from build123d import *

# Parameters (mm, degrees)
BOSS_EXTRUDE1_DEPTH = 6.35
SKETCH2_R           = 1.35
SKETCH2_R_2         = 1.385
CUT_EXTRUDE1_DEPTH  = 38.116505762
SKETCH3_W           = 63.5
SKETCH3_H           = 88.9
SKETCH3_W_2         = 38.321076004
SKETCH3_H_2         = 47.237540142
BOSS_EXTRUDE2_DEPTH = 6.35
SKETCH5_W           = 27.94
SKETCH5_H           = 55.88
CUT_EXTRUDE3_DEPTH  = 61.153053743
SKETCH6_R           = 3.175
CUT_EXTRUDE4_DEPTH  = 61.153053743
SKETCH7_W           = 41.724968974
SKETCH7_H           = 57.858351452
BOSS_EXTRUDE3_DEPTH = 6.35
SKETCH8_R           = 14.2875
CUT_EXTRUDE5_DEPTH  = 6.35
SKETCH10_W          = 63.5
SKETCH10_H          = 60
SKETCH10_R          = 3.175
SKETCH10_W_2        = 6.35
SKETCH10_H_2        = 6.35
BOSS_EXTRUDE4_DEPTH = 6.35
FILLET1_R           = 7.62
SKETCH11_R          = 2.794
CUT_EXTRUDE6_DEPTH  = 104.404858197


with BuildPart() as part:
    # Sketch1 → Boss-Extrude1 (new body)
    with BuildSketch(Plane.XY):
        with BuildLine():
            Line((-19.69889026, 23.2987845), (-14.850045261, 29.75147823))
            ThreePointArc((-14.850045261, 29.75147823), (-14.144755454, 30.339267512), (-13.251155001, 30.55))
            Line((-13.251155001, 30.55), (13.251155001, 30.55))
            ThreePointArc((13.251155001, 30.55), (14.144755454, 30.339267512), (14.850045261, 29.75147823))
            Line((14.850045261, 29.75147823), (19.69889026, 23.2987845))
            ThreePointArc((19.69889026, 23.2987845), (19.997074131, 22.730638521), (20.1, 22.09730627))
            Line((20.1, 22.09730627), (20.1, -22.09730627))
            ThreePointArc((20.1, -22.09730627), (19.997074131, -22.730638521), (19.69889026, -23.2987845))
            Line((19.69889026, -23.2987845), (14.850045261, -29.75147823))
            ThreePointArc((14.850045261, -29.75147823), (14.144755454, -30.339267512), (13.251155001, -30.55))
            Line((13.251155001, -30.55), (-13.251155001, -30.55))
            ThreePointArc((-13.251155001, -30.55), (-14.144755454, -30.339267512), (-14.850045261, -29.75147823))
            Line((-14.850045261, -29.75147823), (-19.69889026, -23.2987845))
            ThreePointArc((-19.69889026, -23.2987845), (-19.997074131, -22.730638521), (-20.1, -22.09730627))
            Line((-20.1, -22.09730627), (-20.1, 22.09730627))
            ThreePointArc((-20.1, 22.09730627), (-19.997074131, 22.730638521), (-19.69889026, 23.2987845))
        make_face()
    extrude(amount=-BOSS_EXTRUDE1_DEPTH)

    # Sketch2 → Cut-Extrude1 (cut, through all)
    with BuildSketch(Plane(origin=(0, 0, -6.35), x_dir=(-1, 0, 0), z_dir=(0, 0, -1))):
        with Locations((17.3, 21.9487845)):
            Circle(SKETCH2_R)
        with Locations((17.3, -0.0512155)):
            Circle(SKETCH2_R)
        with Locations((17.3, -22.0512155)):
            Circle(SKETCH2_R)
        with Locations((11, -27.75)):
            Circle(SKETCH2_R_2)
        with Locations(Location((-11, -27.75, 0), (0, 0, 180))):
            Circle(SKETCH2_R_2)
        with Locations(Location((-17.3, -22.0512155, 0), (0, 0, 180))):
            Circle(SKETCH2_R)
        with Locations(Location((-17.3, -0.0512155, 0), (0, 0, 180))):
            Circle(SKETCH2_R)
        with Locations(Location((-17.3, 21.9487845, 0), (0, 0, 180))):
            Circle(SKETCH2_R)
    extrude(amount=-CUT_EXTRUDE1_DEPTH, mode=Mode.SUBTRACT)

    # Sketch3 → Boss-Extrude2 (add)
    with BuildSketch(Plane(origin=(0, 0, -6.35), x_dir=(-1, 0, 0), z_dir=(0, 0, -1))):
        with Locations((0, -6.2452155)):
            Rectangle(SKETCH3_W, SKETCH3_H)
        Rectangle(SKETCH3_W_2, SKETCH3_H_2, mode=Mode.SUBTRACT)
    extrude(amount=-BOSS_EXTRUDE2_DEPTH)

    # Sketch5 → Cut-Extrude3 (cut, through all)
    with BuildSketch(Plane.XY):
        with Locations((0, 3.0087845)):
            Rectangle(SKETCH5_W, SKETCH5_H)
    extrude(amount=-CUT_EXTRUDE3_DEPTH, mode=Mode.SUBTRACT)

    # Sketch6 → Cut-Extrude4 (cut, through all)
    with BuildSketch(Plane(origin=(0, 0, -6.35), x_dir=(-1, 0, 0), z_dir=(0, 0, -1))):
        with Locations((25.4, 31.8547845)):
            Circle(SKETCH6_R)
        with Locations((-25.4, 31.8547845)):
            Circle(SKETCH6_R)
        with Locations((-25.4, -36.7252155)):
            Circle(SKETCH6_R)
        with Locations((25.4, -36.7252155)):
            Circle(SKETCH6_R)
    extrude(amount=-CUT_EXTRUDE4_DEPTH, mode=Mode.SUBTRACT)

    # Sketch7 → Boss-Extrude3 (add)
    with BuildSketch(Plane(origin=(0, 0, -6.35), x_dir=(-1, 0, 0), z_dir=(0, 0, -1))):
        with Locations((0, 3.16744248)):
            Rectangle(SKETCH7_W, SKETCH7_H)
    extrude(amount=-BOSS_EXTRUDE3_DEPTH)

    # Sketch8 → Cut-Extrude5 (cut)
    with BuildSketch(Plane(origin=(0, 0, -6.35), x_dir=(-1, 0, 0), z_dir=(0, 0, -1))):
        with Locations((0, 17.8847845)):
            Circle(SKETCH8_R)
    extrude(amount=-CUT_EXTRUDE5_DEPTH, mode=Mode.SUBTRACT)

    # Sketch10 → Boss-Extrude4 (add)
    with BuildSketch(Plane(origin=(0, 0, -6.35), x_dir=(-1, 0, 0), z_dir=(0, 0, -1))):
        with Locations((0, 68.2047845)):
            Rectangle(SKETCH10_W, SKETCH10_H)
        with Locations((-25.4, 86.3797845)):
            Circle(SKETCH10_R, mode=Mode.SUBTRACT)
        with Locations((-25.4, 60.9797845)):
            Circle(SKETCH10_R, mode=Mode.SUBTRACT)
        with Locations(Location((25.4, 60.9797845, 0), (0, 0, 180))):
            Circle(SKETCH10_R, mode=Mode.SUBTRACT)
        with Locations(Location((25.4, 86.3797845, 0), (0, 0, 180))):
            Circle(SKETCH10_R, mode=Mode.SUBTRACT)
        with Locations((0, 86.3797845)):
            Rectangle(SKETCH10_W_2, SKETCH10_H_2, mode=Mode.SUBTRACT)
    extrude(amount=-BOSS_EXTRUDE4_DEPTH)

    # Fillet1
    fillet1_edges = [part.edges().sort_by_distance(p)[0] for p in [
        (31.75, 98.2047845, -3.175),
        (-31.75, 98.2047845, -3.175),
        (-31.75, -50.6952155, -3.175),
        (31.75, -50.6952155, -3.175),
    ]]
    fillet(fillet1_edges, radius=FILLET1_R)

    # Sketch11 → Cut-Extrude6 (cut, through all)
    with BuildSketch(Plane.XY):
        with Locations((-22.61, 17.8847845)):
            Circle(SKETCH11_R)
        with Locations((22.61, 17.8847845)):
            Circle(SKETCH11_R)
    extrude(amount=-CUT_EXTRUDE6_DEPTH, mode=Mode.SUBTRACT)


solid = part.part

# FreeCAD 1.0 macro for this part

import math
import FreeCAD as App
import Part
import Sketcher
from FreeCAD import Vector
Q = App.Units.Quantity


def edges_at(feature, points):
    """Names of the edges that pass closest to the given points."""
    edges = feature.Shape.Edges
    near = lambda p: min(range(len(edges)), key=lambda i: edges[i].distToShape(Part.Vertex(*p))[0])
    return sorted({f"Edge{near(p) + 1}" for p in points})


def add_polygon(sketch, points):
    """Adds a closed chain of lines whose ends are joined by coincident constraints."""
    first, n = sketch.GeometryCount, len(points)
    for a, b in zip(points, points[1:] + points[:1]):
        sketch.addGeometry(Part.LineSegment(App.Vector(*a, 0), App.Vector(*b, 0)), False)
    for i in range(n):
        sketch.addConstraint(Sketcher.Constraint("Coincident", first + i, 2, first + (i + 1) % n, 1))

doc = App.newDocument("Part")
body = doc.addObject("PartDesign::Body", "Body")

sketch1 = body.newObject("Sketcher::SketchObject", "Sketch")
sketch1.AttachmentSupport = (doc.getObject("XY_Plane"), [""])
sketch1.MapMode = "FlatFace"
sketch1.addGeometry(Part.LineSegment(Vector(-14.850045, 29.751478, 0), Vector(-19.69889, 23.298785, 0)), False)
sketch1.addGeometry(Part.ArcOfCircle(Part.Circle(Vector(-18.1, 22.097306, 0), Vector(0, 0, 1), 2), math.radians(143.077149), math.radians(180)), False)
sketch1.addGeometry(Part.LineSegment(Vector(-20.1, 22.097306, 0), Vector(-20.1, -22.097306, 0)), False)
sketch1.addGeometry(Part.ArcOfCircle(Part.Circle(Vector(-18.1, -22.097306, 0), Vector(0, 0, 1), 2), math.radians(-180), math.radians(-143.077149)), False)
sketch1.addGeometry(Part.LineSegment(Vector(-19.69889, -23.298785, 0), Vector(-14.850045, -29.751478, 0)), False)
sketch1.addGeometry(Part.ArcOfCircle(Part.Circle(Vector(-13.251155, -28.55, 0), Vector(0, 0, 1), 2), math.radians(-143.077149), math.radians(-90)), False)
sketch1.addGeometry(Part.LineSegment(Vector(-13.251155, -30.55, 0), Vector(13.251155, -30.55, 0)), False)
sketch1.addGeometry(Part.ArcOfCircle(Part.Circle(Vector(13.251155, -28.55, 0), Vector(0, 0, 1), 2), math.radians(-90), math.radians(-36.922851)), False)
sketch1.addGeometry(Part.LineSegment(Vector(14.850045, -29.751478, 0), Vector(19.69889, -23.298785, 0)), False)
sketch1.addGeometry(Part.ArcOfCircle(Part.Circle(Vector(18.1, -22.097306, 0), Vector(0, 0, 1), 2), math.radians(-36.922851), math.radians(0)), False)
sketch1.addGeometry(Part.LineSegment(Vector(20.1, -22.097306, 0), Vector(20.1, 22.097306, 0)), False)
sketch1.addGeometry(Part.ArcOfCircle(Part.Circle(Vector(18.1, 22.097306, 0), Vector(0, 0, 1), 2), math.radians(0), math.radians(36.922851)), False)
sketch1.addGeometry(Part.LineSegment(Vector(19.69889, 23.298785, 0), Vector(14.850045, 29.751478, 0)), False)
sketch1.addGeometry(Part.ArcOfCircle(Part.Circle(Vector(13.251155, 28.55, 0), Vector(0, 0, 1), 2), math.radians(36.922851), math.radians(90)), False)
sketch1.addGeometry(Part.LineSegment(Vector(13.251155, 30.55, 0), Vector(-13.251155, 30.55, 0)), False)
sketch1.addGeometry(Part.ArcOfCircle(Part.Circle(Vector(-13.251155, 28.55, 0), Vector(0, 0, 1), 2), math.radians(90), math.radians(143.077149)), False)
sketch1.addConstraint(Sketcher.Constraint("Tangent", 0, 2, 1, 1))
sketch1.addConstraint(Sketcher.Constraint("Tangent", 1, 2, 2, 1))
sketch1.addConstraint(Sketcher.Constraint("Tangent", 2, 2, 3, 1))
sketch1.addConstraint(Sketcher.Constraint("Tangent", 3, 2, 4, 1))
sketch1.addConstraint(Sketcher.Constraint("Tangent", 4, 2, 5, 1))
sketch1.addConstraint(Sketcher.Constraint("Tangent", 5, 2, 6, 1))
sketch1.addConstraint(Sketcher.Constraint("Tangent", 6, 2, 7, 1))
sketch1.addConstraint(Sketcher.Constraint("Tangent", 7, 2, 8, 1))
sketch1.addConstraint(Sketcher.Constraint("Tangent", 8, 2, 9, 1))
sketch1.addConstraint(Sketcher.Constraint("Tangent", 9, 2, 10, 1))
sketch1.addConstraint(Sketcher.Constraint("Tangent", 10, 2, 11, 1))
sketch1.addConstraint(Sketcher.Constraint("Tangent", 11, 2, 12, 1))
sketch1.addConstraint(Sketcher.Constraint("Tangent", 12, 2, 13, 1))
sketch1.addConstraint(Sketcher.Constraint("Tangent", 13, 2, 14, 1))
sketch1.addConstraint(Sketcher.Constraint("Tangent", 14, 2, 15, 1))
sketch1.addConstraint(Sketcher.Constraint("Tangent", 15, 2, 0, 1))
sketch1.addConstraint(Sketcher.Constraint("Vertical", 2))
sketch1.addConstraint(Sketcher.Constraint("Horizontal", 6))
sketch1.addConstraint(Sketcher.Constraint("Vertical", 10))
sketch1.addConstraint(Sketcher.Constraint("Horizontal", 14))
sketch1.addConstraint(Sketcher.Constraint("Equal", 1, 3))
sketch1.addConstraint(Sketcher.Constraint("Equal", 3, 5))
sketch1.addConstraint(Sketcher.Constraint("Equal", 5, 7))
sketch1.addConstraint(Sketcher.Constraint("Equal", 7, 9))
sketch1.addConstraint(Sketcher.Constraint("Equal", 9, 11))
sketch1.addConstraint(Sketcher.Constraint("Equal", 11, 13))
sketch1.addConstraint(Sketcher.Constraint("Equal", 13, 15))
sketch1.addConstraint(Sketcher.Constraint("Symmetric", 1, 3, 9, 3, -1, 1))
sketch1.addConstraint(Sketcher.Constraint("Symmetric", 5, 3, 13, 3, -1, 1))
sketch1.addConstraint(Sketcher.Constraint("Symmetric", 4, 2, 7, 2, -2))
sketch1.addConstraint(Sketcher.Constraint("Symmetric", 0, 2, 11, 2, -2))
sketch1.addConstraint(Sketcher.Constraint("Radius", 1, 2.0))
sketch1.addConstraint(Sketcher.Constraint("DistanceX", 6, 1, 6, 2, 26.50231))
sketch1.addConstraint(Sketcher.Constraint("DistanceX", 1, 3, -1, 1, 18.1))
sketch1.addConstraint(Sketcher.Constraint("DistanceY", 5, 3, -1, 1, 28.55))
sketch1.addConstraint(Sketcher.Constraint("DistanceX", 4, 2, 7, 3, 28.1012))
pad1 = body.newObject("PartDesign::Pad", "Pad")
pad1.Profile = sketch1
pad1.Length = Q("0.25 in")
pad1.Reversed = True

sketch2 = body.newObject("Sketcher::SketchObject", "Sketch001")
sketch2.AttachmentSupport = (doc.getObject("XY_Plane"), [""])
sketch2.MapMode = "FlatFace"
sketch2.AttachmentOffset = App.Placement(Vector(0, 0, -0.25 * 25.4), App.Rotation())
sketch2.addGeometry(Part.Circle(Vector(-17.3, 21.948784, 0), Vector(0, 0, 1), 1.35), False)
sketch2.addGeometry(Part.Circle(Vector(-17.3, -0.051215, 0), Vector(0, 0, 1), 1.35), False)
sketch2.addGeometry(Part.Circle(Vector(-17.3, -22.051216, 0), Vector(0, 0, 1), 1.35), False)
sketch2.addGeometry(Part.Circle(Vector(-11, -27.75, 0), Vector(0, 0, 1), 1.385), False)
sketch2.addGeometry(Part.Circle(Vector(11, -27.75, 0), Vector(0, 0, 1), 1.385), False)
sketch2.addGeometry(Part.Circle(Vector(17.3, -22.051216, 0), Vector(0, 0, 1), 1.35), False)
sketch2.addGeometry(Part.Circle(Vector(17.3, -0.051215, 0), Vector(0, 0, 1), 1.35), False)
sketch2.addGeometry(Part.Circle(Vector(17.3, 21.948784, 0), Vector(0, 0, 1), 1.35), False)
sketch2.addConstraint(Sketcher.Constraint("Equal", 0, 1))
sketch2.addConstraint(Sketcher.Constraint("Equal", 1, 2))
sketch2.addConstraint(Sketcher.Constraint("Equal", 3, 4))
sketch2.addConstraint(Sketcher.Constraint("Equal", 2, 5))
sketch2.addConstraint(Sketcher.Constraint("Equal", 5, 6))
sketch2.addConstraint(Sketcher.Constraint("Equal", 6, 7))
sketch2.addConstraint(Sketcher.Constraint("Symmetric", 3, 3, 4, 3, -2))
sketch2.addConstraint(Sketcher.Constraint("Symmetric", 2, 3, 5, 3, -2))
sketch2.addConstraint(Sketcher.Constraint("Symmetric", 1, 3, 6, 3, -2))
sketch2.addConstraint(Sketcher.Constraint("Symmetric", 0, 3, 7, 3, -2))
sketch2.addConstraint(Sketcher.Constraint("Vertical", 0, 3, 1, 3))
sketch2.addConstraint(Sketcher.Constraint("Vertical", 1, 3, 2, 3))
sketch2.addConstraint(Sketcher.Constraint("Diameter", 0, 2.7))
sketch2.addConstraint(Sketcher.Constraint("Diameter", 3, 2.77))
sketch2.addConstraint(Sketcher.Constraint("DistanceX", 0, 3, -1, 1, 17.3))
sketch2.addConstraint(Sketcher.Constraint("DistanceX", 3, 3, -1, 1, 11.0))
sketch2.addConstraint(Sketcher.Constraint("DistanceY", 3, 3, -1, 1, 27.75))
sketch2.addConstraint(Sketcher.Constraint("DistanceY", 1, 3, 0, 3, 22.0))
sketch2.addConstraint(Sketcher.Constraint("DistanceY", 2, 3, 1, 3, 22.0))
sketch2.addConstraint(Sketcher.Constraint("DistanceY", -1, 1, 0, 3, 21.948784))
pocket1 = body.newObject("PartDesign::Pocket", "Pocket")
pocket1.Profile = sketch2
pocket1.Type = "ThroughAll"
pocket1.Reversed = True

sketch3 = body.newObject("Sketcher::SketchObject", "Sketch002")
sketch3.AttachmentSupport = (doc.getObject("XY_Plane"), [""])
sketch3.MapMode = "FlatFace"
sketch3.AttachmentOffset = App.Placement(Vector(0, 0, -0.25 * 25.4), App.Rotation())
add_polygon(sketch3, [(31.75, 38.204785), (31.75, -50.695216), (-31.75, -50.695216), (-31.75, 38.204785)])
add_polygon(sketch3, [(-19.160538, -23.61877), (19.160538, -23.61877), (19.160538, 23.61877), (-19.160538, 23.61877)])
sketch3.addConstraint(Sketcher.Constraint("Vertical", 0))
sketch3.addConstraint(Sketcher.Constraint("Horizontal", 1))
sketch3.addConstraint(Sketcher.Constraint("Vertical", 2))
sketch3.addConstraint(Sketcher.Constraint("Horizontal", 3))
sketch3.addConstraint(Sketcher.Constraint("Horizontal", 4))
sketch3.addConstraint(Sketcher.Constraint("Vertical", 5))
sketch3.addConstraint(Sketcher.Constraint("Horizontal", 6))
sketch3.addConstraint(Sketcher.Constraint("Vertical", 7))
sketch3.addConstraint(Sketcher.Constraint("Symmetric", 4, 2, 6, 2, -1, 1))
sketch3.addConstraint(Sketcher.Constraint("DistanceX", 1, 2, 1, 1, Q("2.5 in")))
sketch3.addConstraint(Sketcher.Constraint("DistanceY", 0, 2, 0, 1, Q("3.5 in")))
sketch3.addConstraint(Sketcher.Constraint("DistanceX", -1, 1, 0, 2, Q("1.25 in")))
sketch3.addConstraint(Sketcher.Constraint("DistanceY", 5, 1, 5, 2, 47.23754))
sketch3.addConstraint(Sketcher.Constraint("DistanceX", 4, 1, 4, 2, 38.321076))
sketch3.addConstraint(Sketcher.Constraint("DistanceY", 0, 2, -1, 1, 50.695216))
pad2 = body.newObject("PartDesign::Pad", "Pad001")
pad2.Profile = sketch3
pad2.Length = Q("0.25 in")

sketch4 = body.newObject("Sketcher::SketchObject", "Sketch003")
sketch4.AttachmentSupport = (doc.getObject("XY_Plane"), [""])
sketch4.MapMode = "FlatFace"
add_polygon(sketch4, [(-13.97, 30.948784), (-13.97, -24.931216), (13.97, -24.931216), (13.97, 30.948784)])
sketch4.addConstraint(Sketcher.Constraint("Vertical", 0))
sketch4.addConstraint(Sketcher.Constraint("Horizontal", 1))
sketch4.addConstraint(Sketcher.Constraint("Vertical", 2))
sketch4.addConstraint(Sketcher.Constraint("Horizontal", 3))
sketch4.addConstraint(Sketcher.Constraint("DistanceX", 1, 1, 1, 2, Q("1.1 in")))
sketch4.addConstraint(Sketcher.Constraint("DistanceY", 0, 2, 0, 1, Q("2.2 in")))
sketch4.addConstraint(Sketcher.Constraint("DistanceX", 0, 2, -1, 1, Q("0.55 in")))
sketch4.addConstraint(Sketcher.Constraint("DistanceY", 0, 2, -1, 1, 24.931216))
pocket2 = body.newObject("PartDesign::Pocket", "Pocket001")
pocket2.Profile = sketch4
pocket2.Type = "ThroughAll"

sketch5 = body.newObject("Sketcher::SketchObject", "Sketch004")
sketch5.AttachmentSupport = (doc.getObject("XY_Plane"), [""])
sketch5.MapMode = "FlatFace"
sketch5.AttachmentOffset = App.Placement(Vector(0, 0, -0.25 * 25.4), App.Rotation())
sketch5.addGeometry(Part.Circle(Vector(-25.4, 31.854785, 0), Vector(0, 0, 1), 3.175), False)
sketch5.addGeometry(Part.Circle(Vector(25.4, 31.854785, 0), Vector(0, 0, 1), 3.175), False)
sketch5.addGeometry(Part.Circle(Vector(25.4, -36.725215, 0), Vector(0, 0, 1), 3.175), False)
sketch5.addGeometry(Part.Circle(Vector(-25.4, -36.725215, 0), Vector(0, 0, 1), 3.175), False)
sketch5.addConstraint(Sketcher.Constraint("Equal", 0, 1))
sketch5.addConstraint(Sketcher.Constraint("Equal", 1, 2))
sketch5.addConstraint(Sketcher.Constraint("Equal", 2, 3))
sketch5.addConstraint(Sketcher.Constraint("Symmetric", 0, 3, 1, 3, -2))
sketch5.addConstraint(Sketcher.Constraint("Symmetric", 2, 3, 3, 3, -2))
sketch5.addConstraint(Sketcher.Constraint("Vertical", 1, 3, 2, 3))
sketch5.addConstraint(Sketcher.Constraint("Diameter", 0, Q("0.25 in")))
sketch5.addConstraint(Sketcher.Constraint("DistanceX", 0, 3, -1, 1, Q("1 in")))
sketch5.addConstraint(Sketcher.Constraint("DistanceY", 2, 3, 1, 3, Q("2.7 in")))
sketch5.addConstraint(Sketcher.Constraint("DistanceY", -1, 1, 0, 3, 31.854785))
pocket3 = body.newObject("PartDesign::Pocket", "Pocket002")
pocket3.Profile = sketch5
pocket3.Type = "ThroughAll"
pocket3.Reversed = True

sketch6 = body.newObject("Sketcher::SketchObject", "Sketch005")
sketch6.AttachmentSupport = (doc.getObject("XY_Plane"), [""])
sketch6.MapMode = "FlatFace"
sketch6.AttachmentOffset = App.Placement(Vector(0, 0, -0.25 * 25.4), App.Rotation())
add_polygon(sketch6, [(20.862484, 32.096618), (20.862484, -25.761733), (-20.862484, -25.761733), (-20.862484, 32.096618)])
sketch6.addConstraint(Sketcher.Constraint("Vertical", 0))
sketch6.addConstraint(Sketcher.Constraint("Horizontal", 1))
sketch6.addConstraint(Sketcher.Constraint("Vertical", 2))
sketch6.addConstraint(Sketcher.Constraint("Horizontal", 3))
sketch6.addConstraint(Sketcher.Constraint("DistanceX", 1, 2, 1, 1, 41.724969))
sketch6.addConstraint(Sketcher.Constraint("DistanceY", 0, 2, 0, 1, 57.858351))
sketch6.addConstraint(Sketcher.Constraint("DistanceY", -1, 1, 2, 2, 32.096618))
sketch6.addConstraint(Sketcher.Constraint("DistanceX", -1, 1, 0, 2, 20.862484))
pad3 = body.newObject("PartDesign::Pad", "Pad002")
pad3.Profile = sketch6
pad3.Length = Q("0.25 in")

sketch7 = body.newObject("Sketcher::SketchObject", "Sketch006")
sketch7.AttachmentSupport = (doc.getObject("XY_Plane"), [""])
sketch7.MapMode = "FlatFace"
sketch7.AttachmentOffset = App.Placement(Vector(0, 0, -0.25 * 25.4), App.Rotation())
sketch7.addGeometry(Part.Circle(Vector(0, 17.884784, 0), Vector(0, 0, 1), 14.2875), False)
sketch7.addConstraint(Sketcher.Constraint("PointOnObject", 0, 3, -2))
sketch7.addConstraint(Sketcher.Constraint("Diameter", 0, Q("1.125 in")))
sketch7.addConstraint(Sketcher.Constraint("DistanceY", -1, 1, 0, 3, 17.884784))
pocket4 = body.newObject("PartDesign::Pocket", "Pocket003")
pocket4.Profile = sketch7
pocket4.Length = Q("0.25 in")
pocket4.Reversed = True

sketch8 = body.newObject("Sketcher::SketchObject", "Sketch007")
sketch8.AttachmentSupport = (doc.getObject("XY_Plane"), [""])
sketch8.MapMode = "FlatFace"
sketch8.AttachmentOffset = App.Placement(Vector(0, 0, -0.25 * 25.4), App.Rotation())
add_polygon(sketch8, [(31.75, 98.204785), (31.75, 38.204785), (-31.75, 38.204785), (-31.75, 98.204785)])
sketch8.addGeometry(Part.Circle(Vector(25.4, 60.979785, 0), Vector(0, 0, 1), 3.175), False)
sketch8.addGeometry(Part.Circle(Vector(-25.4, 60.979785, 0), Vector(0, 0, 1), 3.175), False)
sketch8.addGeometry(Part.Circle(Vector(25.4, 86.379784, 0), Vector(0, 0, 1), 3.175), False)
add_polygon(sketch8, [(-3.175, 83.204785), (3.175, 83.204785), (3.175, 89.554784), (-3.175, 89.554784)])
sketch8.addGeometry(Part.Circle(Vector(-25.4, 86.379784, 0), Vector(0, 0, 1), 3.175), False)
sketch8.addConstraint(Sketcher.Constraint("Vertical", 0))
sketch8.addConstraint(Sketcher.Constraint("Horizontal", 1))
sketch8.addConstraint(Sketcher.Constraint("Vertical", 2))
sketch8.addConstraint(Sketcher.Constraint("Horizontal", 3))
sketch8.addConstraint(Sketcher.Constraint("Horizontal", 7))
sketch8.addConstraint(Sketcher.Constraint("Vertical", 8))
sketch8.addConstraint(Sketcher.Constraint("Horizontal", 9))
sketch8.addConstraint(Sketcher.Constraint("Vertical", 10))
sketch8.addConstraint(Sketcher.Constraint("Equal", 4, 5))
sketch8.addConstraint(Sketcher.Constraint("Equal", 5, 6))
sketch8.addConstraint(Sketcher.Constraint("Equal", 6, 11))
sketch8.addConstraint(Sketcher.Constraint("Symmetric", 4, 3, 5, 3, -2))
sketch8.addConstraint(Sketcher.Constraint("Symmetric", 6, 3, 11, 3, -2))
sketch8.addConstraint(Sketcher.Constraint("Vertical", 4, 3, 6, 3))
sketch8.addConstraint(Sketcher.Constraint("Equal", 9, 8))
sketch8.addConstraint(Sketcher.Constraint("Diameter", 4, Q("0.25 in")))
sketch8.addConstraint(Sketcher.Constraint("DistanceX", 1, 2, 1, 1, Q("2.5 in")))
sketch8.addConstraint(Sketcher.Constraint("DistanceX", -1, 1, 4, 3, Q("1 in")))
sketch8.addConstraint(Sketcher.Constraint("DistanceY", 4, 3, 6, 3, Q("1 in")))
sketch8.addConstraint(Sketcher.Constraint("DistanceX", 7, 1, 7, 2, Q("0.25 in")))
sketch8.addConstraint(Sketcher.Constraint("DistanceX", -1, 1, 0, 2, Q("1.25 in")))
sketch8.addConstraint(Sketcher.Constraint("DistanceX", -1, 1, 7, 2, Q("0.125 in")))
sketch8.addConstraint(Sketcher.Constraint("DistanceY", 7, 2, 6, 3, Q("0.125 in")))
sketch8.addConstraint(Sketcher.Constraint("DistanceY", 0, 2, 0, 1, 60.0))
sketch8.addConstraint(Sketcher.Constraint("DistanceY", 0, 2, 4, 3, 22.775))
sketch8.addConstraint(Sketcher.Constraint("DistanceY", -1, 1, 4, 3, 60.979785))
pad4 = body.newObject("PartDesign::Pad", "Pad003")
pad4.Profile = sketch8
pad4.Length = Q("0.25 in")
doc.recompute()

fillet = body.newObject("PartDesign::Fillet", "Fillet")
fillet.Base = (pad4, edges_at(pad4, [
    (31.75, 98.205, -3.175),
    (-31.75, 98.205, -3.175),
    (-31.75, -50.695, -3.175),
    (31.75, -50.695, -3.175),
]))
fillet.Radius = Q("0.3 in")

sketch9 = body.newObject("Sketcher::SketchObject", "Sketch008")
sketch9.AttachmentSupport = (doc.getObject("XY_Plane"), [""])
sketch9.MapMode = "FlatFace"
sketch9.addGeometry(Part.Circle(Vector(-22.61, 17.884784, 0), Vector(0, 0, 1), 2.794), False)
sketch9.addGeometry(Part.Circle(Vector(22.61, 17.884784, 0), Vector(0, 0, 1), 2.794), False)
sketch9.addConstraint(Sketcher.Constraint("Equal", 0, 1))
sketch9.addConstraint(Sketcher.Constraint("Symmetric", 0, 3, 1, 3, -2))
sketch9.addConstraint(Sketcher.Constraint("Diameter", 0, Q("0.22 in")))
sketch9.addConstraint(Sketcher.Constraint("DistanceX", 0, 3, -1, 1, 22.61))
sketch9.addConstraint(Sketcher.Constraint("DistanceY", -1, 1, 0, 3, 17.884784))
pocket5 = body.newObject("PartDesign::Pocket", "Pocket004")
pocket5.Profile = sketch9
pocket5.Type = "ThroughAll"

doc.recompute()
